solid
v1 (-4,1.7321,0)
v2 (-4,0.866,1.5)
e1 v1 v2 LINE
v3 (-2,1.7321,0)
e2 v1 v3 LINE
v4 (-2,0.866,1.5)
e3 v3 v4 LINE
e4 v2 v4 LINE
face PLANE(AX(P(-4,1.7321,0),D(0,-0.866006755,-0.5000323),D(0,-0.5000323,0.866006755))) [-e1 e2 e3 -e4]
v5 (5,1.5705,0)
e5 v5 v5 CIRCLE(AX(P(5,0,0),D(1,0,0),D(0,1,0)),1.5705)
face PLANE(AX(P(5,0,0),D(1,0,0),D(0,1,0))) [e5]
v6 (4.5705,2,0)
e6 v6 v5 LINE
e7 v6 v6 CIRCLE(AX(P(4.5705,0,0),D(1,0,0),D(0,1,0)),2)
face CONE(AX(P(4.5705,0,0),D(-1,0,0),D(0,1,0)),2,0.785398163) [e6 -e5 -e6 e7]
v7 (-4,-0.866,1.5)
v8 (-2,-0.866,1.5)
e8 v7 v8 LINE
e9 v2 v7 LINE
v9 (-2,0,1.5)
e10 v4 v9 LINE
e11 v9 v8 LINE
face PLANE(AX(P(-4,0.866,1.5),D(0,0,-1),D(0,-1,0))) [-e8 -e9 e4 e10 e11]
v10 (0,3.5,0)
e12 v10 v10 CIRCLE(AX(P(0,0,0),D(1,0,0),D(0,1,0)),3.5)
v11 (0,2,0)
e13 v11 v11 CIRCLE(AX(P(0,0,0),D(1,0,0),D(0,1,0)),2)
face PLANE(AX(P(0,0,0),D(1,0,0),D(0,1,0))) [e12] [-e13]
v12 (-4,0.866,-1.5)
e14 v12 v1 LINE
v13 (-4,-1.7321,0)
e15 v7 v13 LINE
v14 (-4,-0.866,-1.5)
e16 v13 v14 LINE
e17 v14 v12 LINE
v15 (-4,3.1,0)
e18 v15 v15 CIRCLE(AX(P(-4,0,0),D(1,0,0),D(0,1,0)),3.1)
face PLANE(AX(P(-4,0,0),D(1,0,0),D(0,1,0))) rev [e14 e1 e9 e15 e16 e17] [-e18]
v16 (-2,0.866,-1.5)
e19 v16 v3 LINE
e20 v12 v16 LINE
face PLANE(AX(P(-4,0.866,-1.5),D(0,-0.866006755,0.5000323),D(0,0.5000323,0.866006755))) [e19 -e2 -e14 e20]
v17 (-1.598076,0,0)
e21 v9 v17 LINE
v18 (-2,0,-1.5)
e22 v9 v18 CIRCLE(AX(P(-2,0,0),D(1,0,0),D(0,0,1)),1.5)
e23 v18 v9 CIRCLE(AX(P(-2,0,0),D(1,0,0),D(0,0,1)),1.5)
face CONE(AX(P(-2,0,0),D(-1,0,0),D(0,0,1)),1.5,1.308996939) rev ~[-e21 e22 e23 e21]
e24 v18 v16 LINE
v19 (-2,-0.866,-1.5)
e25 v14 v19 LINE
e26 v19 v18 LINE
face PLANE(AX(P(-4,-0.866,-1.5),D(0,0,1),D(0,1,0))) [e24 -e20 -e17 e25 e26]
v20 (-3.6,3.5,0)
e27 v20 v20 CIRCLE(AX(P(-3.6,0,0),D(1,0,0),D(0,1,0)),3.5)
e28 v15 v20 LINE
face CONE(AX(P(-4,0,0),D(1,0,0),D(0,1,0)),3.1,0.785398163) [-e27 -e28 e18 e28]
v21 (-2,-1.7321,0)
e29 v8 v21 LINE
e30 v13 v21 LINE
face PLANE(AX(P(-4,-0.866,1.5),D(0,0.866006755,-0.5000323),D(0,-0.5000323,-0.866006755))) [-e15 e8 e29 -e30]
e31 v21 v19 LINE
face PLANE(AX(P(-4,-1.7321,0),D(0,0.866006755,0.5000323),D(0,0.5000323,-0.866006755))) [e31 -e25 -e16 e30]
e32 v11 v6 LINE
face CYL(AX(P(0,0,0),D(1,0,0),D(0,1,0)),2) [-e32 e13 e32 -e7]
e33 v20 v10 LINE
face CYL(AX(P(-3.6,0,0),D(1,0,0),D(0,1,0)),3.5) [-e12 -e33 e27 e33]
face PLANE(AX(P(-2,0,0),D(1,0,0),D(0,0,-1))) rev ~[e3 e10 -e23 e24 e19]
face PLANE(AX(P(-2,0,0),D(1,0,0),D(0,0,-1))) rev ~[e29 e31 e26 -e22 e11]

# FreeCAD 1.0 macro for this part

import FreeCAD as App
import Part
import Sketcher
Q = App.Units.Quantity

doc = App.newDocument("Part")
body = doc.addObject("PartDesign::Body", "Body")

# Sketch on XY plane
sketch1 = doc.addObject("Sketcher::SketchObject", "Sketch")
body.addObject(sketch1)
sketch1.AttachmentSupport = (doc.XY_Plane, [""])
sketch1.MapMode = "FlatFace"
sketch1.addGeometry([
    Part.LineSegment(App.Vector(-4, 0, 0), App.Vector(5, 0, 0)),  # 0
    Part.LineSegment(App.Vector(5, 0, 0), App.Vector(5, 1.6, 0)),  # 1
    Part.LineSegment(App.Vector(5, 1.6, 0), App.Vector(4.6, 2, 0)),  # 2
    Part.LineSegment(App.Vector(4.6, 2, 0), App.Vector(0, 2, 0)),  # 3
    Part.LineSegment(App.Vector(0, 2, 0), App.Vector(0, 3.5, 0)),  # 4
    Part.LineSegment(App.Vector(0, 3.5, 0), App.Vector(-3.6, 3.5, 0)),  # 5
    Part.LineSegment(App.Vector(-3.6, 3.5, 0), App.Vector(-4, 3.1, 0)),  # 6
    Part.LineSegment(App.Vector(-4, 3.1, 0), App.Vector(-4, 0, 0)),  # 7
], False)
sketch1.addConstraint([
    Sketcher.Constraint("Coincident", 0, 2, 1, 1),
    Sketcher.Constraint("Coincident", 1, 2, 2, 1),
    Sketcher.Constraint("Coincident", 2, 2, 3, 1),
    Sketcher.Constraint("Coincident", 3, 2, 4, 1),
    Sketcher.Constraint("Coincident", 4, 2, 5, 1),
    Sketcher.Constraint("Coincident", 5, 2, 6, 1),
    Sketcher.Constraint("Coincident", 6, 2, 7, 1),
    Sketcher.Constraint("Coincident", 7, 2, 0, 1),
    Sketcher.Constraint("Horizontal", 0),
    Sketcher.Constraint("Vertical", 1),
    Sketcher.Constraint("Horizontal", 3),
    Sketcher.Constraint("Vertical", 4),
    Sketcher.Constraint("Horizontal", 5),
    Sketcher.Constraint("Vertical", 7),
    Sketcher.Constraint("PointOnObject", 0, 2, -1),
    Sketcher.Constraint("PointOnObject", 3, 2, -2),
    Sketcher.Constraint("Perpendicular", 2, 6),
    Sketcher.Constraint("DistanceX", 0, 1, 0, 2, 9.0),
    Sketcher.Constraint("Angle", 2, Q("135 deg")),
    Sketcher.Constraint("DistanceX", 5, 2, 5, 1, 3.6),
    Sketcher.Constraint("DistanceY", 4, 1, 4, 2, 1.5),
    Sketcher.Constraint("DistanceY", 7, 2, 7, 1, 3.1),
    Sketcher.Constraint("DistanceX", -1, 1, 0, 2, 5.0),
    Sketcher.Constraint("DistanceX", 3, 2, 3, 1, 4.5705),
])
revolution = doc.addObject("PartDesign::Revolution", "Revolution")
body.addObject(revolution)
revolution.Profile = sketch1
revolution.ReferenceAxis = (sketch1, ["H_Axis"])
revolution.Angle = 360

# Sketch on YZ plane
sketch2 = doc.addObject("Sketcher::SketchObject", "Sketch001")
body.addObject(sketch2)
sketch2.AttachmentSupport = (doc.YZ_Plane, [""])
sketch2.MapMode = "FlatFace"
sketch2.AttachmentOffset = App.Placement(App.Vector(0, 0, -4), App.Rotation())
sketch2.addGeometry(Part.Circle(App.Vector(0, 0, 0), App.Vector(0, 0, 1), 1.5), False)
sketch2.addConstraint([
    Sketcher.Constraint("Coincident", 0, 3, -1, 1),
    Sketcher.Constraint("Diameter", 0, 3.0),
])
doc.recompute()
hole = doc.addObject("PartDesign::Hole", "Hole")
body.addObject(hole)
hole.Profile = sketch2
hole.ThreadType = "None"
hole.Diameter = 3
hole.DepthType = "Dimension"
hole.Depth = 2
hole.DrillPoint = "Angled"
hole.DrillPointAngle = 150
hole.Reversed = True

# Sketch on YZ plane
sketch3 = doc.addObject("Sketcher::SketchObject", "Sketch002")
body.addObject(sketch3)
sketch3.AttachmentSupport = (doc.YZ_Plane, [""])
sketch3.MapMode = "FlatFace"
sketch3.AttachmentOffset = App.Placement(App.Vector(0, 0, -4), App.Rotation())
sketch3.addGeometry([
    Part.LineSegment(App.Vector(0.9, 1.5, 0), App.Vector(-0.9, 1.5, 0)),  # 0
    Part.LineSegment(App.Vector(-0.9, 1.5, 0), App.Vector(-1.7, 0, 0)),  # 1
    Part.LineSegment(App.Vector(-1.7, 0, 0), App.Vector(-0.9, -1.5, 0)),  # 2
    Part.LineSegment(App.Vector(-0.9, -1.5, 0), App.Vector(0.9, -1.5, 0)),  # 3
    Part.LineSegment(App.Vector(0.9, -1.5, 0), App.Vector(1.7, 0, 0)),  # 4
    Part.LineSegment(App.Vector(1.7, 0, 0), App.Vector(0.9, 1.5, 0)),  # 5
], False)
sketch3.addConstraint([
    Sketcher.Constraint("Coincident", 0, 2, 1, 1),
    Sketcher.Constraint("Coincident", 1, 2, 2, 1),
    Sketcher.Constraint("Coincident", 2, 2, 3, 1),
    Sketcher.Constraint("Coincident", 3, 2, 4, 1),
    Sketcher.Constraint("Coincident", 4, 2, 5, 1),
    Sketcher.Constraint("Coincident", 5, 2, 0, 1),
    Sketcher.Constraint("Horizontal", 0),
    Sketcher.Constraint("Horizontal", 3),
    Sketcher.Constraint("Symmetric", 0, 2, 3, 2, -1, 1),
    Sketcher.Constraint("Symmetric", 1, 2, 4, 2, -1, 1),
    Sketcher.Constraint("PointOnObject", 1, 2, -1),
    Sketcher.Constraint("Parallel", 2, 5),
    Sketcher.Constraint("Vertical", 0, 2, 2, 2),
    Sketcher.Constraint("DistanceY", 2, 2, 0, 2, 3.0),
    Sketcher.Constraint("DistanceX", 0, 2, 0, 1, 1.732),
    Sketcher.Constraint("Distance", 1, 1.732),
])
pocket1 = doc.addObject("PartDesign::Pocket", "Pocket")
body.addObject(pocket1)
pocket1.Profile = sketch3
pocket1.Length = 2
pocket1.Reversed = True

doc.recompute()
